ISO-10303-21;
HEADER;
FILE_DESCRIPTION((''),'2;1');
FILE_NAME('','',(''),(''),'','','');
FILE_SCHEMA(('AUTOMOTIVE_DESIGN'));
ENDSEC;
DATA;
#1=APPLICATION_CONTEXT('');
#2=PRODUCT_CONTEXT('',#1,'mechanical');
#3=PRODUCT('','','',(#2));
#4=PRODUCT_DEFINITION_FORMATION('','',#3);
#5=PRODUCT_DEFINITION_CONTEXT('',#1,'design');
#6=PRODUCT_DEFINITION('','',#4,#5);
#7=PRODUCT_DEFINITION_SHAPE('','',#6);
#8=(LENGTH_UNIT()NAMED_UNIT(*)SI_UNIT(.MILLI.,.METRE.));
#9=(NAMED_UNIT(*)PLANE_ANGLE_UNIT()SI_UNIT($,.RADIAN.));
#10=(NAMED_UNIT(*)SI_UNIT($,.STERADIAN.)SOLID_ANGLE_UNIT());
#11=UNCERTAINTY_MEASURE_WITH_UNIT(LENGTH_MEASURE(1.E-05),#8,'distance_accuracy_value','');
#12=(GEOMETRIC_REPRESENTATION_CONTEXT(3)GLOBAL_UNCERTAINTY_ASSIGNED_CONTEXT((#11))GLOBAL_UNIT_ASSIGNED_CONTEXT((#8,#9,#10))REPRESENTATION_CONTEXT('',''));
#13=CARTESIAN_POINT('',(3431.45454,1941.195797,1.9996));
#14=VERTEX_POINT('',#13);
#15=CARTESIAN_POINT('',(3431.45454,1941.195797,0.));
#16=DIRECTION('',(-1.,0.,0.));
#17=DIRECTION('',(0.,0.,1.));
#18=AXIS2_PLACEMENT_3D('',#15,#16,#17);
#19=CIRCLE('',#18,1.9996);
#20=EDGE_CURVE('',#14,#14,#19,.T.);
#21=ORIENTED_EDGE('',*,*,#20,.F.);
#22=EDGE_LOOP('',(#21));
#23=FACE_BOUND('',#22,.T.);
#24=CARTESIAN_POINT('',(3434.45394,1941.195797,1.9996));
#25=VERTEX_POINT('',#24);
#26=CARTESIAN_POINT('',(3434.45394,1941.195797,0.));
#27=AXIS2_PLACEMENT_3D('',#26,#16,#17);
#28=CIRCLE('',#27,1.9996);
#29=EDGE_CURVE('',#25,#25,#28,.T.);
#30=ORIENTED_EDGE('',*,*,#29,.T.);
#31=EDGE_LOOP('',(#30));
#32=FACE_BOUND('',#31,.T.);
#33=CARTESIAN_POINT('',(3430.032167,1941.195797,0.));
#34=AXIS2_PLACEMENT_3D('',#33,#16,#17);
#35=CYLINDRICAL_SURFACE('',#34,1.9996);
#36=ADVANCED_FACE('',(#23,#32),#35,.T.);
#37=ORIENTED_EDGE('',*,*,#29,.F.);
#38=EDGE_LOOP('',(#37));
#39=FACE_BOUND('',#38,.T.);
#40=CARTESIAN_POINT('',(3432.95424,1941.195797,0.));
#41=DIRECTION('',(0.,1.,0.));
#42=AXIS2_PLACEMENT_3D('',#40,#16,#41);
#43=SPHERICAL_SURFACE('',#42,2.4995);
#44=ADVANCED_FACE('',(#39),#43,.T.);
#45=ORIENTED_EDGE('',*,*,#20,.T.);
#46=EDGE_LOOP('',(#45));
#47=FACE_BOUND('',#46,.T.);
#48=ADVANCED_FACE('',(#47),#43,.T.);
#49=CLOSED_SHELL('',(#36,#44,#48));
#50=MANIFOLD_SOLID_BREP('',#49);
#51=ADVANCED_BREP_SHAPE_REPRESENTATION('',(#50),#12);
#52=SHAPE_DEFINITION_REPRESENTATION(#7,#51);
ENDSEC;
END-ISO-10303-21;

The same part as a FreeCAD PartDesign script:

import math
import FreeCAD as App
import Part
import Sketcher
Q = App.Units.Quantity

doc = App.newDocument("Part")
body = doc.addObject("PartDesign::Body", "Body")

sketch1 = doc.addObject("Sketcher::SketchObject", "Sketch")
body.addObject(sketch1)
sketch1.AttachmentSupport = (doc.XY_Plane, [""])
sketch1.MapMode = "FlatFace"
sketch1.addGeometry([
    Part.LineSegment(App.Vector(3434.45394, 1943.195397, 0), App.Vector(3431.45454, 1943.195397, 0)),
    Part.ArcOfCircle(Part.Circle(App.Vector(3432.95424, 1941.195797, 0), App.Vector(0, 0, 1), 2.4995), math.radians(126.869898), math.radians(180)),
    Part.LineSegment(App.Vector(3430.45474, 1941.195797, 0), App.Vector(3435.45374, 1941.195797, 0)),
    Part.ArcOfCircle(Part.Circle(App.Vector(3432.95424, 1941.195797, 0), App.Vector(0, 0, 1), 2.4995), math.radians(0), math.radians(53.130102)),
], False)
sketch1.addGeometry(Part.LineSegment(App.Vector(3430.45474, 1941.195797, 0), App.Vector(3435.45374, 1941.195797, 0)), True)
sketch1.addConstraint([
    Sketcher.Constraint("Coincident", 0, 2, 1, 1),
    Sketcher.Constraint("Coincident", 1, 2, 2, 1),
    Sketcher.Constraint("Coincident", 2, 2, 3, 1),
    Sketcher.Constraint("Coincident", 3, 2, 0, 1),
    Sketcher.Constraint("Horizontal", 0),
    Sketcher.Constraint("Horizontal", 2),
    Sketcher.Constraint("Horizontal", 4),
    Sketcher.Constraint("Coincident", 3, 3, 1, 3),
    Sketcher.Constraint("Coincident", 4, 1, 1, 2),
    Sketcher.Constraint("Equal", 1, 3),
    Sketcher.Constraint("Horizontal", 3, 3, 1, 2),
    Sketcher.Constraint("Equal", 2, 4),
    Sketcher.Constraint("Radius", 1, Q("2.4995 mm")),
    Sketcher.Constraint("DistanceX", 0, 2, 0, 1, Q("2.9994 mm")),
    Sketcher.Constraint("DistanceX", -1, 1, 1, 3, Q("3432.95424 mm")),
    Sketcher.Constraint("DistanceY", -1, 1, 1, 3, Q("1941.195797 mm")),
])
revolution = doc.addObject("PartDesign::Revolution", "Revolution")
body.addObject(revolution)
revolution.Profile = sketch1
revolution.ReferenceAxis = (sketch1, ["Axis0"])
revolution.Angle = 360

doc.recompute()
